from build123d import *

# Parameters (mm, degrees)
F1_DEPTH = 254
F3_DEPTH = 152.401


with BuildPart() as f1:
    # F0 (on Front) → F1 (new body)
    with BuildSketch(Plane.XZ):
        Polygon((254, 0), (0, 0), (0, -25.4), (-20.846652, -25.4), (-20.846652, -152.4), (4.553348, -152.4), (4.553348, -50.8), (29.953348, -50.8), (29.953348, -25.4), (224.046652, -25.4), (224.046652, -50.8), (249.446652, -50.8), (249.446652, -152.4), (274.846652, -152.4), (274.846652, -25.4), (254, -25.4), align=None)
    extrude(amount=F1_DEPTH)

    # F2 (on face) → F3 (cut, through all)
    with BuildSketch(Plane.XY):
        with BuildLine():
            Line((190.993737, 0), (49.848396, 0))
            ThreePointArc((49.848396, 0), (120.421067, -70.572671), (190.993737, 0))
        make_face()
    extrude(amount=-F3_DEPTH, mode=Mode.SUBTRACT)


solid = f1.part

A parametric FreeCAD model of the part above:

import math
import FreeCAD as App
import Part
import Sketcher

V = App.Vector
Q = App.Units.Quantity

doc = App.newDocument("Part")
body = doc.addObject("PartDesign::Body", "Body")

sketch1 = doc.addObject("Sketcher::SketchObject", "Sketch")
body.addObject(sketch1)
sketch1.AttachmentSupport = (doc.XZ_Plane, [""])
sketch1.MapMode = "FlatFace"
sketch1.addGeometry([
    Part.LineSegment(V(254, 0, 0), V(0, 0, 0)),
    Part.LineSegment(V(0, 0, 0), V(0, -25.4, 0)),
    Part.LineSegment(V(0, -25.4, 0), V(-20.846652, -25.4, 0)),
    Part.LineSegment(V(-20.846652, -25.4, 0), V(-20.846652, -152.4, 0)),
    Part.LineSegment(V(-20.846652, -152.4, 0), V(4.553348, -152.4, 0)),
    Part.LineSegment(V(4.553348, -152.4, 0), V(4.553348, -50.8, 0)),
    Part.LineSegment(V(4.553348, -50.8, 0), V(29.953348, -50.8, 0)),
    Part.LineSegment(V(29.953348, -50.8, 0), V(29.953348, -25.4, 0)),
    Part.LineSegment(V(29.953348, -25.4, 0), V(224.046652, -25.4, 0)),
    Part.LineSegment(V(224.046652, -25.4, 0), V(224.046652, -50.8, 0)),
    Part.LineSegment(V(224.046652, -50.8, 0), V(249.446652, -50.8, 0)),
    Part.LineSegment(V(249.446652, -50.8, 0), V(249.446652, -152.4, 0)),
    Part.LineSegment(V(249.446652, -152.4, 0), V(274.846652, -152.4, 0)),
    Part.LineSegment(V(274.846652, -152.4, 0), V(274.846652, -25.4, 0)),
    Part.LineSegment(V(274.846652, -25.4, 0), V(254, -25.4, 0)),
    Part.LineSegment(V(254, -25.4, 0), V(254, 0, 0)),
], False)
sketch1.addConstraint([
    Sketcher.Constraint("Coincident", 0, 2, 1, 1),
    Sketcher.Constraint("Coincident", 1, 2, 2, 1),
    Sketcher.Constraint("Coincident", 2, 2, 3, 1),
    Sketcher.Constraint("Coincident", 3, 2, 4, 1),
    Sketcher.Constraint("Coincident", 4, 2, 5, 1),
    Sketcher.Constraint("Coincident", 5, 2, 6, 1),
    Sketcher.Constraint("Coincident", 6, 2, 7, 1),
    Sketcher.Constraint("Coincident", 7, 2, 8, 1),
    Sketcher.Constraint("Coincident", 8, 2, 9, 1),
    Sketcher.Constraint("Coincident", 9, 2, 10, 1),
    Sketcher.Constraint("Coincident", 10, 2, 11, 1),
    Sketcher.Constraint("Coincident", 11, 2, 12, 1),
    Sketcher.Constraint("Coincident", 12, 2, 13, 1),
    Sketcher.Constraint("Coincident", 13, 2, 14, 1),
    Sketcher.Constraint("Coincident", 14, 2, 15, 1),
    Sketcher.Constraint("Coincident", 15, 2, 0, 1),
    Sketcher.Constraint("Horizontal", 0),
    Sketcher.Constraint("Vertical", 1),
    Sketcher.Constraint("Horizontal", 2),
    Sketcher.Constraint("Vertical", 3),
    Sketcher.Constraint("Horizontal", 4),
    Sketcher.Constraint("Vertical", 5),
    Sketcher.Constraint("Horizontal", 6),
    Sketcher.Constraint("Vertical", 7),
    Sketcher.Constraint("Horizontal", 8),
    Sketcher.Constraint("Vertical", 9),
    Sketcher.Constraint("Horizontal", 10),
    Sketcher.Constraint("Vertical", 11),
    Sketcher.Constraint("Horizontal", 12),
    Sketcher.Constraint("Vertical", 13),
    Sketcher.Constraint("Horizontal", 14),
    Sketcher.Constraint("Vertical", 15),
    Sketcher.Constraint("Coincident", 0, 2, -1, 1),
    Sketcher.Constraint("Horizontal", 2, 2, 7, 2),
    Sketcher.Constraint("Horizontal", 6, 2, 9, 2),
    Sketcher.Constraint("Horizontal", 4, 2, 11, 2),
    Sketcher.Constraint("Horizontal", 8, 2, 13, 2),
    Sketcher.Constraint("Equal", 4, 6),
    Sketcher.Constraint("Equal", 6, 10),
    Sketcher.Constraint("Equal", 10, 12),
    Sketcher.Constraint("Equal", 2, 14),
    Sketcher.Constraint("Equal", 12, 1),
    Sketcher.Constraint("Equal", 1, 7),
    Sketcher.Constraint("DistanceX", 0, 2, 0, 1, Q("10 in")),
    Sketcher.Constraint("DistanceX", 4, 1, 4, 2, Q("1 in")),
    Sketcher.Constraint("DistanceY", 3, 2, 3, 1, Q("5 in")),
    Sketcher.Constraint("DistanceX", 2, 2, 2, 1, Q("20.846652 mm")),
])
pad1 = doc.addObject("PartDesign::Pad", "Pad")
body.addObject(pad1)
pad1.Profile = sketch1
pad1.Length = Q("10 in")

sketch2 = doc.addObject("Sketcher::SketchObject", "Sketch001")
body.addObject(sketch2)
sketch2.AttachmentSupport = (doc.XY_Plane, [""])
sketch2.MapMode = "FlatFace"
sketch2.addGeometry([
    Part.LineSegment(V(190.993737, 0, 0), V(49.848396, 0, 0)),
    Part.ArcOfCircle(Part.Circle(V(120.421066, 0, 0), V(0, 0, 1), 70.572671), math.radians(180), math.radians(360)),
], False)
sketch2.addConstraint([
    Sketcher.Constraint("Coincident", 0, 1, 1, 2),
    Sketcher.Constraint("Coincident", 1, 1, 0, 2),
    Sketcher.Constraint("Horizontal", 0),
    Sketcher.Constraint("PointOnObject", 1, 3, -1),
    Sketcher.Constraint("PointOnObject", 0, 1, -1),
    Sketcher.Constraint("Radius", 1, Q("70.572671 mm")),
    Sketcher.Constraint("DistanceX", -1, 1, 1, 3, Q("120.421066 mm")),
])
pocket1 = doc.addObject("PartDesign::Pocket", "Pocket")
body.addObject(pocket1)
pocket1.Profile = sketch2
pocket1.Type = "ThroughAll"

doc.recompute()
